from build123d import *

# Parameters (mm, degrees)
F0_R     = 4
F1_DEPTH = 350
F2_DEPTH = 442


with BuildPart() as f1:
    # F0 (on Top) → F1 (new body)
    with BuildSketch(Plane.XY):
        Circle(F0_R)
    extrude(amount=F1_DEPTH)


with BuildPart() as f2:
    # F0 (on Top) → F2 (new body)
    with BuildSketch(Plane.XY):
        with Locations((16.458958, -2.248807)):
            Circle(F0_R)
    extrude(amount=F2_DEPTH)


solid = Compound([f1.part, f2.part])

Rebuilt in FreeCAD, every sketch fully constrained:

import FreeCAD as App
import Part
import Sketcher
from FreeCAD import Vector

doc = App.newDocument("Part")
body = doc.addObject("PartDesign::Body", "Body")

# Sketch on XY plane
sketch1 = doc.addObject("Sketcher::SketchObject", "Sketch")
body.addObject(sketch1)
sketch1.AttachmentSupport = (doc.XY_Plane, [""])
sketch1.MapMode = "FlatFace"
sketch1.addGeometry(Part.Circle(Vector(0, 0, 0), Vector(0, 0, 1), 4), False)
sketch1.addConstraint([
    Sketcher.Constraint("Coincident", 0, 3, -1, 1),
    Sketcher.Constraint("Diameter", 0, 8.0),
])
pad1 = doc.addObject("PartDesign::Pad", "Pad")
body.addObject(pad1)
pad1.Profile = sketch1
pad1.Length = 350
body2 = doc.addObject("PartDesign::Body", "Body001")

# Sketch on XY plane
sketch2 = doc.addObject("Sketcher::SketchObject", "Sketch001")
body2.addObject(sketch2)
sketch2.AttachmentSupport = (doc.getObject("XY_Plane001"), [""])
sketch2.MapMode = "FlatFace"
sketch2.addGeometry(Part.Circle(Vector(16.5, -2.2, 0), Vector(0, 0, 1), 4), False)
sketch2.addConstraint([
    Sketcher.Constraint("Diameter", 0, 8.0),
    Sketcher.Constraint("DistanceX", -1, 1, 0, 3, 16.458958),
    Sketcher.Constraint("DistanceY", 0, 3, -1, 1, 2.248807),
])
pad2 = doc.addObject("PartDesign::Pad", "Pad001")
body2.addObject(pad2)
pad2.Profile = sketch2
pad2.Length = 442

doc.recompute()
